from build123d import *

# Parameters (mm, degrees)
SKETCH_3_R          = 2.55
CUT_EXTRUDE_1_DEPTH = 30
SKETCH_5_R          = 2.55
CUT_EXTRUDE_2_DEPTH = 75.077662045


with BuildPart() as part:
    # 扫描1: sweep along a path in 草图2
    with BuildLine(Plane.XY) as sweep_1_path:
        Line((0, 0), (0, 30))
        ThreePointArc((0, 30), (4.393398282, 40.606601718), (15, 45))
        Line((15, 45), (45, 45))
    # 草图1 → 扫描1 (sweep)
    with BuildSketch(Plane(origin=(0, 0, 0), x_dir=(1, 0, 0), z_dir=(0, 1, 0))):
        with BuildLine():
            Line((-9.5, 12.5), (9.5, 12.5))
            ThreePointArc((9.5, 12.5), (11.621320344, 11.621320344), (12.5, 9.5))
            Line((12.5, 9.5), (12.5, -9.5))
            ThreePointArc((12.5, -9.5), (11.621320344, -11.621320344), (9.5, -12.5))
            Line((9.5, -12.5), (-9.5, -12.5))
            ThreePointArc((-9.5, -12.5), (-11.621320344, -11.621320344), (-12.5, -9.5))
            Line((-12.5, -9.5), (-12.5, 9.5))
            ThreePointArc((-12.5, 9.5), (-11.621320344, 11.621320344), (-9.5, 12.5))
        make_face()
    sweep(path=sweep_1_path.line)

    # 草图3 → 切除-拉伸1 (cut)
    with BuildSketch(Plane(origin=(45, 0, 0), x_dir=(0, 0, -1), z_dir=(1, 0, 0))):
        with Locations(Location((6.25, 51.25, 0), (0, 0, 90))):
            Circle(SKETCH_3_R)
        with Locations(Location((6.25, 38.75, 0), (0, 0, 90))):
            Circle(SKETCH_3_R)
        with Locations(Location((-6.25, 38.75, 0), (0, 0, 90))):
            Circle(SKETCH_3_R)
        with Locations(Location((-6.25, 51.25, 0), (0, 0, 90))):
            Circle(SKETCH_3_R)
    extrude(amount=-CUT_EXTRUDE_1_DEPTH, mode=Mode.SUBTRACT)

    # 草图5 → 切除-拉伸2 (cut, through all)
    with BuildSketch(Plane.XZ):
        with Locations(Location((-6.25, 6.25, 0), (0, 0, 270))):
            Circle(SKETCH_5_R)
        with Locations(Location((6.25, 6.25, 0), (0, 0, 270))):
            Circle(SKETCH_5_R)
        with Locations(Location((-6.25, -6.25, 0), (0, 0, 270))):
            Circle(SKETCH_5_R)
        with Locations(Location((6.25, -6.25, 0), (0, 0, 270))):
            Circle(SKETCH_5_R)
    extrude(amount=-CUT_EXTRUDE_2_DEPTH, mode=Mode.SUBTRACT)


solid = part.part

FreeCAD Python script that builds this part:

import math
import FreeCAD as App
import Part
import Sketcher

V = App.Vector
Q = App.Units.Quantity

doc = App.newDocument("Part")
params = doc.addObject("Spreadsheet::Sheet", "Params")
for row, (alias, value) in enumerate([
    ("sketch1_radius", "3 mm"),
    ("sketch1_width", "19 mm"),
    ("sketch2_radius", "15 mm"),
    ("sketch2_width", "30 mm"),
    ("sketch3_diameter", "5.1 mm"),
    ("pocket1_length", "30 mm"),
    ("sketch4_diameter", "5.1 mm"),
], start=1):
    params.set(f"A{row}", alias)
    params.set(f"B{row}", "=" + value)
    params.setAlias(f"B{row}", alias)

body = doc.addObject("PartDesign::Body", "Body")

# Sketch on XZ plane
sketch1 = body.newObject("Sketcher::SketchObject", "Sketch")
sketch1.AttachmentSupport = (doc.getObject("XZ_Plane"), [""])
sketch1.MapMode = "FlatFace"
sketch1.addGeometry([
    Part.LineSegment(V(9.5, -12.5, 0), V(-9.5, -12.5, 0)),  # 0
    Part.ArcOfCircle(Part.Circle(V(-9.5, -9.5, 0), V(0, 0, 1), 3), math.radians(180), math.radians(270)),  # 1
    Part.LineSegment(V(-12.5, -9.5, 0), V(-12.5, 9.5, 0)),  # 2
    Part.ArcOfCircle(Part.Circle(V(-9.5, 9.5, 0), V(0, 0, 1), 3), math.radians(90), math.radians(180)),  # 3
    Part.LineSegment(V(-9.5, 12.5, 0), V(9.5, 12.5, 0)),  # 4
    Part.ArcOfCircle(Part.Circle(V(9.5, 9.5, 0), V(0, 0, 1), 3), math.radians(0), math.radians(90)),  # 5
    Part.LineSegment(V(12.5, 9.5, 0), V(12.5, -9.5, 0)),  # 6
    Part.ArcOfCircle(Part.Circle(V(9.5, -9.5, 0), V(0, 0, 1), 3), math.radians(-90), math.radians(0)),  # 7
], False)
sketch1.addConstraint([
    Sketcher.Constraint("Tangent", 0, 2, 1, 2),
    Sketcher.Constraint("Tangent", 1, 1, 2, 1),
    Sketcher.Constraint("Tangent", 2, 2, 3, 2),
    Sketcher.Constraint("Tangent", 3, 1, 4, 1),
    Sketcher.Constraint("Tangent", 4, 2, 5, 2),
    Sketcher.Constraint("Tangent", 5, 1, 6, 1),
    Sketcher.Constraint("Tangent", 6, 2, 7, 2),
    Sketcher.Constraint("Tangent", 7, 1, 0, 1),
    Sketcher.Constraint("Horizontal", 0),
    Sketcher.Constraint("Vertical", 2),
    Sketcher.Constraint("Horizontal", 4),
    Sketcher.Constraint("Vertical", 6),
    Sketcher.Constraint("Equal", 1, 3),
    Sketcher.Constraint("Equal", 3, 5),
    Sketcher.Constraint("Equal", 5, 7),
    Sketcher.Constraint("Symmetric", 1, 3, 5, 3, -1, 1),
    Sketcher.Constraint("Equal", 4, 2),
    Sketcher.Constraint("Radius", 1, Q("3 mm")),
    Sketcher.Constraint("DistanceX", 0, 2, 0, 1, Q("19 mm")),
])
sketch1.setExpression("Constraints[17]", "Params.sketch1_radius")
sketch1.setExpression("Constraints[18]", "Params.sketch1_width")

# Sketch on XY plane
sketch2 = body.newObject("Sketcher::SketchObject", "Sketch001")
sketch2.AttachmentSupport = (doc.getObject("XY_Plane"), [""])
sketch2.MapMode = "FlatFace"
sketch2.addGeometry([
    Part.LineSegment(V(0, 0, 0), V(0, 30, 0)),
    Part.ArcOfCircle(Part.Circle(V(15, 30, 0), V(0, 0, 1), 15), math.radians(90), math.radians(180)),
    Part.LineSegment(V(15, 45, 0), V(45, 45, 0)),
], False)
sketch2.addConstraint([
    Sketcher.Constraint("Tangent", 0, 2, 1, 2),
    Sketcher.Constraint("Tangent", 1, 1, 2, 1),
    Sketcher.Constraint("Vertical", 0),
    Sketcher.Constraint("Horizontal", 2),
    Sketcher.Constraint("Coincident", 0, 1, -1, 1),
    Sketcher.Constraint("Equal", 2, 0),
    Sketcher.Constraint("Radius", 1, Q("15 mm")),
    Sketcher.Constraint("DistanceX", 2, 1, 2, 2, Q("30 mm")),
])
sketch2.setExpression("Constraints[6]", "Params.sketch2_radius")
sketch2.setExpression("Constraints[7]", "Params.sketch2_width")
doc.recompute()

additivepipe = body.newObject("PartDesign::AdditivePipe", "AdditivePipe")
additivepipe.Profile = sketch1
additivepipe.Spine = (sketch2, ["Edge1", "Edge2", "Edge3"])

# Sketch on YZ plane
sketch3 = body.newObject("Sketcher::SketchObject", "Sketch002")
sketch3.AttachmentSupport = (doc.getObject("YZ_Plane"), [""])
sketch3.MapMode = "FlatFace"
sketch3.AttachmentOffset = App.Placement(V(0, 0, 45), App.Rotation())
sketch3.addGeometry([
    Part.Circle(V(51.2, -6.2, 0), V(0, 0, 1), 2.5),
    Part.Circle(V(38.8, -6.2, 0), V(0, 0, 1), 2.5),
    Part.Circle(V(38.8, 6.2, 0), V(0, 0, 1), 2.5),
    Part.Circle(V(51.2, 6.2, 0), V(0, 0, 1), 2.5),
], False)
sketch3.addConstraint([
    Sketcher.Constraint("Equal", 0, 1),
    Sketcher.Constraint("Equal", 1, 2),
    Sketcher.Constraint("Equal", 2, 3),
    Sketcher.Constraint("Symmetric", 1, 3, 2, 3, -1),
    Sketcher.Constraint("Symmetric", 0, 3, 3, 3, -1),
    Sketcher.Constraint("Horizontal", 0, 3, 1, 3),
    Sketcher.Constraint("Diameter", 0, Q("5.1 mm")),
    Sketcher.Constraint("DistanceX", 1, 3, 0, 3, Q("12.5 mm")),
    Sketcher.Constraint("DistanceY", 1, 3, 2, 3, Q("12.5 mm")),
    Sketcher.Constraint("DistanceX", -1, 1, 0, 3, Q("51.25 mm")),
])
sketch3.setExpression("Constraints[6]", "Params.sketch3_diameter")
pocket1 = body.newObject("PartDesign::Pocket", "Pocket")
pocket1.Profile = sketch3
pocket1.setExpression("Length", "Params.pocket1_length")

# Sketch on XZ plane
sketch4 = body.newObject("Sketcher::SketchObject", "Sketch003")
sketch4.AttachmentSupport = (doc.getObject("XZ_Plane"), [""])
sketch4.MapMode = "FlatFace"
sketch4.addGeometry([
    Part.Circle(V(-6.2, 6.2, 0), V(0, 0, 1), 2.5),
    Part.Circle(V(6.2, 6.2, 0), V(0, 0, 1), 2.5),
    Part.Circle(V(-6.2, -6.2, 0), V(0, 0, 1), 2.5),
    Part.Circle(V(6.2, -6.2, 0), V(0, 0, 1), 2.5),
], False)
sketch4.addConstraint([
    Sketcher.Constraint("Equal", 0, 1),
    Sketcher.Constraint("Equal", 1, 2),
    Sketcher.Constraint("Equal", 2, 3),
    Sketcher.Constraint("Symmetric", 1, 3, 2, 3, -1, 1),
    Sketcher.Constraint("Symmetric", 0, 3, 3, 3, -1, 1),
    Sketcher.Constraint("Symmetric", 0, 3, 1, 3, -2),
    Sketcher.Constraint("Diameter", 0, Q("5.1 mm")),
    Sketcher.Constraint("DistanceX", 0, 3, 1, 3, Q("12.5 mm")),
    Sketcher.Constraint("DistanceY", 2, 3, 0, 3, Q("12.5 mm")),
])
sketch4.setExpression("Constraints[6]", "Params.sketch4_diameter")
pocket2 = body.newObject("PartDesign::Pocket", "Pocket001")
pocket2.Profile = sketch4
pocket2.Type = "ThroughAll"

doc.recompute()
